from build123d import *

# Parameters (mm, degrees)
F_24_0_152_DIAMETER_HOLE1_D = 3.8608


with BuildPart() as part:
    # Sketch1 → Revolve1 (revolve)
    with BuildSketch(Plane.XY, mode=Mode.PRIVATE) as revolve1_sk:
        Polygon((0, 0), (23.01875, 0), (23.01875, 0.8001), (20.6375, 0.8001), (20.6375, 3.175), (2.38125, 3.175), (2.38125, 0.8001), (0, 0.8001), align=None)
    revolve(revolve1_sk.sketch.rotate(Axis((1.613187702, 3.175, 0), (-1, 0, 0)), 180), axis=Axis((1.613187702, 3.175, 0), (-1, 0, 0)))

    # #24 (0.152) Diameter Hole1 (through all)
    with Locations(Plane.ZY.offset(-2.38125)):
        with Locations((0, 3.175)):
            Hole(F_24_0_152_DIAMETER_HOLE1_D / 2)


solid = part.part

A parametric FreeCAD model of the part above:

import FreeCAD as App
import Part
import Sketcher
from FreeCAD import Vector
Q = App.Units.Quantity

doc = App.newDocument("Part")
body = doc.addObject("PartDesign::Body", "Body")

sketch1 = body.newObject("Sketcher::SketchObject", "Sketch")
sketch1.AttachmentSupport = (doc.getObject("XY_Plane"), [""])
sketch1.MapMode = "FlatFace"
sketch1.addGeometry([
    Part.LineSegment(Vector(0, 0, 0), Vector(23.01875, 0, 0)),
    Part.LineSegment(Vector(23.01875, 0, 0), Vector(23.01875, 0.8001, 0)),
    Part.LineSegment(Vector(23.01875, 0.8001, 0), Vector(20.6375, 0.8001, 0)),
    Part.LineSegment(Vector(20.6375, 0.8001, 0), Vector(20.6375, 3.175, 0)),
    Part.LineSegment(Vector(20.6375, 3.175, 0), Vector(2.38125, 3.175, 0)),
    Part.LineSegment(Vector(2.38125, 3.175, 0), Vector(2.38125, 0.8001, 0)),
    Part.LineSegment(Vector(2.38125, 0.8001, 0), Vector(0, 0.8001, 0)),
    Part.LineSegment(Vector(0, 0.8001, 0), Vector(0, 0, 0)),
], False)
sketch1.addGeometry(Part.LineSegment(Vector(23.01875, 3.175, 0), Vector(0, 3.175, 0)), True)
sketch1.addConstraint([
    Sketcher.Constraint("Coincident", 0, 2, 1, 1),
    Sketcher.Constraint("Coincident", 1, 2, 2, 1),
    Sketcher.Constraint("Coincident", 2, 2, 3, 1),
    Sketcher.Constraint("Coincident", 3, 2, 4, 1),
    Sketcher.Constraint("Coincident", 4, 2, 5, 1),
    Sketcher.Constraint("Coincident", 5, 2, 6, 1),
    Sketcher.Constraint("Coincident", 6, 2, 7, 1),
    Sketcher.Constraint("Coincident", 7, 2, 0, 1),
    Sketcher.Constraint("Horizontal", 0),
    Sketcher.Constraint("Vertical", 1),
    Sketcher.Constraint("Horizontal", 2),
    Sketcher.Constraint("Vertical", 3),
    Sketcher.Constraint("Horizontal", 4),
    Sketcher.Constraint("Vertical", 5),
    Sketcher.Constraint("Horizontal", 6),
    Sketcher.Constraint("Vertical", 7),
    Sketcher.Constraint("Horizontal", 8),
    Sketcher.Constraint("Coincident", 7, 2, -1, 1),
    Sketcher.Constraint("PointOnObject", 8, 2, -2),
    Sketcher.Constraint("Horizontal", 2, 2, 5, 2),
    Sketcher.Constraint("Horizontal", 4, 2, 8, 1),
    Sketcher.Constraint("Vertical", 1, 2, 8, 1),
    Sketcher.Constraint("Equal", 2, 6),
    Sketcher.Constraint("DistanceX", 0, 1, 0, 2, Q("0.90625 in")),
    Sketcher.Constraint("DistanceX", 2, 2, 2, 1, Q("0.09375 in")),
    Sketcher.Constraint("DistanceY", 1, 1, 1, 2, Q("0.0315 in")),
    Sketcher.Constraint("DistanceY", 3, 1, 3, 2, Q("0.0935 in")),
])
revolution = body.newObject("PartDesign::Revolution", "Revolution")
revolution.Profile = sketch1
revolution.ReferenceAxis = (sketch1, ["Axis0"])
revolution.Angle = 360

sketch2 = body.newObject("Sketcher::SketchObject", "Sketch001")
sketch2.AttachmentSupport = (doc.getObject("YZ_Plane"), [""])
sketch2.MapMode = "FlatFace"
sketch2.AttachmentOffset = App.Placement(Vector(0, 0, 0.09375 * 25.4), App.Rotation())
sketch2.addGeometry(Part.Circle(Vector(3.175, 0, 0), Vector(0, 0, 1), 1.9304), False)
sketch2.addConstraint([
    Sketcher.Constraint("PointOnObject", 0, 3, -1),
    Sketcher.Constraint("Diameter", 0, Q("0.152 in")),
    Sketcher.Constraint("DistanceX", -1, 1, 0, 3, Q("0.125 in")),
])
doc.recompute()
hole = body.newObject("PartDesign::Hole", "Hole")
hole.Profile = sketch2
hole.ThreadType = "None"
hole.Diameter = Q("0.152 in")
hole.DepthType = "ThroughAll"
hole.Reversed = True

doc.recompute()
